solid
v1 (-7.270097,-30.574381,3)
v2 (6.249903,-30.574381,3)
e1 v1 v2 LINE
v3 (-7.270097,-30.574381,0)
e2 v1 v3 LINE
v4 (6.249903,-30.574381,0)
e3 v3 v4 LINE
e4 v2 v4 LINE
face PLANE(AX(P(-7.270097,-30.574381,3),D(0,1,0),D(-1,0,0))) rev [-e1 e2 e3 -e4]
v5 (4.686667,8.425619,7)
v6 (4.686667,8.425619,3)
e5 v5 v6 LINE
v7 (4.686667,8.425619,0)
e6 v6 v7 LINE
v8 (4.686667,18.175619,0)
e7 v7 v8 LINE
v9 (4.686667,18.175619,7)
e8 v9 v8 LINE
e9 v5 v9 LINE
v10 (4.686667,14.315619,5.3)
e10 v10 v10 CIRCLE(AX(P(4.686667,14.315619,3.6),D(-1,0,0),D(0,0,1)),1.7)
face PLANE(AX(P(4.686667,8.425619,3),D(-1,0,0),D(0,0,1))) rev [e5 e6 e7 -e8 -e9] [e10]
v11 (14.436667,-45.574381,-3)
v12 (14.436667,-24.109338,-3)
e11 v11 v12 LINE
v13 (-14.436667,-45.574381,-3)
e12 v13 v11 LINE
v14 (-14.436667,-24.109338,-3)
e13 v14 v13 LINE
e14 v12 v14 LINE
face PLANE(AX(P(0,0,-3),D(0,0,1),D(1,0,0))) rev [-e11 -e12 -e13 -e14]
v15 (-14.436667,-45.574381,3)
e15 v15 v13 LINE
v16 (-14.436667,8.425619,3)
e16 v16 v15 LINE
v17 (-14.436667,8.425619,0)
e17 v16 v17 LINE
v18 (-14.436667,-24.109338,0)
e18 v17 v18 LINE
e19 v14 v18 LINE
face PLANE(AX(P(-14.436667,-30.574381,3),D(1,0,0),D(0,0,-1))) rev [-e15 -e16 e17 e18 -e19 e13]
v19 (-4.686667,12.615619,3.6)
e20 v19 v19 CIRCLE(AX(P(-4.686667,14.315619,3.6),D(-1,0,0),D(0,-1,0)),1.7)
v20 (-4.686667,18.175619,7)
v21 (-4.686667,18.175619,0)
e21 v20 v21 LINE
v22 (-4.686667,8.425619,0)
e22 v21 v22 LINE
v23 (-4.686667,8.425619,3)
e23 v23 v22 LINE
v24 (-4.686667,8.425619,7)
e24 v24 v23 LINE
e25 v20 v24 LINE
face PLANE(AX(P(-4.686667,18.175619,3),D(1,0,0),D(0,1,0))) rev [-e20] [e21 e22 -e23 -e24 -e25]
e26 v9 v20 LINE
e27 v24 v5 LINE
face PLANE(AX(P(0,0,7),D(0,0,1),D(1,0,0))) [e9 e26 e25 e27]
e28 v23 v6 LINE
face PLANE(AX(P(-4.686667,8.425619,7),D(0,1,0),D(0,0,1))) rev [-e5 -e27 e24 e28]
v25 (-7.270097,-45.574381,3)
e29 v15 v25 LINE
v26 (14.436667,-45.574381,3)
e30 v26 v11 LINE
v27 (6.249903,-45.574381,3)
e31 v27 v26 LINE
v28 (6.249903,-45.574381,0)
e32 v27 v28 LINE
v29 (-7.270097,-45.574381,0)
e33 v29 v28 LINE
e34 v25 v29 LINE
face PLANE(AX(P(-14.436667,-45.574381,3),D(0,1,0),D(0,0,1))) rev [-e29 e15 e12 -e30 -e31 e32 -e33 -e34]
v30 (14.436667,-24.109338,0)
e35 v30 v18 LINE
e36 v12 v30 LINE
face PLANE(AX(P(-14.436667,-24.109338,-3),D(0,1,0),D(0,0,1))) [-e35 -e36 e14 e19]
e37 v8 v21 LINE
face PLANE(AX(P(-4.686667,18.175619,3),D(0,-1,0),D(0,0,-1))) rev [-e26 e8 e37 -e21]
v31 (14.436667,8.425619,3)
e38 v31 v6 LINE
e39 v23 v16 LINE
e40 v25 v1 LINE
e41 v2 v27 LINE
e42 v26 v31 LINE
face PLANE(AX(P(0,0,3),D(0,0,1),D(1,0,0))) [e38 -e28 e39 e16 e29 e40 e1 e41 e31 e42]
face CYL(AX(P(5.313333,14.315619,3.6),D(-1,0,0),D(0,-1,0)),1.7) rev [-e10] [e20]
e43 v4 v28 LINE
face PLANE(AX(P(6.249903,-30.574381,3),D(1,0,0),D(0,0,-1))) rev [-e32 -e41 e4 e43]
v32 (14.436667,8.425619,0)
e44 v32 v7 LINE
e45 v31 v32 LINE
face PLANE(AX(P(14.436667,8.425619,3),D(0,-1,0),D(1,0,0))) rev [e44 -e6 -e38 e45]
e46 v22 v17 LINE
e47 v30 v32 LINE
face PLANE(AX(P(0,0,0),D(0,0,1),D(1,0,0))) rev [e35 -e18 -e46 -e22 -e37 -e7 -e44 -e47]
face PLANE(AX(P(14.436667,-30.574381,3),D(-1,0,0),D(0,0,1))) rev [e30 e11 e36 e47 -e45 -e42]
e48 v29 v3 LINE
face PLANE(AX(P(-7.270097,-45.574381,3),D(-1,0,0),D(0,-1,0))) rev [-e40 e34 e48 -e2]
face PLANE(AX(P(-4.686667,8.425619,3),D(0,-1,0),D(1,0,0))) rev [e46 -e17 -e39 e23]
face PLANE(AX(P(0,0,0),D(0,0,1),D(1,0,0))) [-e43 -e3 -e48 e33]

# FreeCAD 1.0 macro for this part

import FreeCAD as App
import Part
import Sketcher

V = App.Vector

doc = App.newDocument("Part")
body = doc.addObject("PartDesign::Body", "Body")

sketch1 = body.newObject("Sketcher::SketchObject", "Sketch")
sketch1.AttachmentSupport = (doc.getObject("XY_Plane"), [""])
sketch1.MapMode = "FlatFace"
sketch1.addGeometry(Part.LineSegment(V(-5, 8, 0), V(-14, 8, 0)), False)
sketch1.addGeometry(Part.LineSegment(V(-14, 8, 0), V(-14, -46, 0)), False)
sketch1.addGeometry(Part.LineSegment(V(-14, -46, 0), V(-7, -46, 0)), False)
sketch1.addGeometry(Part.LineSegment(V(-7, -46, 0), V(-7, -31, 0)), False)
sketch1.addGeometry(Part.LineSegment(V(-7, -31, 0), V(6, -31, 0)), False)
sketch1.addGeometry(Part.LineSegment(V(6, -31, 0), V(6, -46, 0)), False)
sketch1.addGeometry(Part.LineSegment(V(6, -46, 0), V(14, -46, 0)), False)
sketch1.addGeometry(Part.LineSegment(V(14, -46, 0), V(14, 8, 0)), False)
sketch1.addGeometry(Part.LineSegment(V(14, 8, 0), V(5, 8, 0)), False)
sketch1.addGeometry(Part.LineSegment(V(5, 8, 0), V(5, 18, 0)), False)
sketch1.addGeometry(Part.LineSegment(V(5, 18, 0), V(-5, 18, 0)), False)
sketch1.addGeometry(Part.LineSegment(V(-5, 18, 0), V(-5, 8, 0)), False)
sketch1.addConstraint(Sketcher.Constraint("Coincident", 0, 2, 1, 1))
sketch1.addConstraint(Sketcher.Constraint("Coincident", 1, 2, 2, 1))
sketch1.addConstraint(Sketcher.Constraint("Coincident", 2, 2, 3, 1))
sketch1.addConstraint(Sketcher.Constraint("Coincident", 3, 2, 4, 1))
sketch1.addConstraint(Sketcher.Constraint("Coincident", 4, 2, 5, 1))
sketch1.addConstraint(Sketcher.Constraint("Coincident", 5, 2, 6, 1))
sketch1.addConstraint(Sketcher.Constraint("Coincident", 6, 2, 7, 1))
sketch1.addConstraint(Sketcher.Constraint("Coincident", 7, 2, 8, 1))
sketch1.addConstraint(Sketcher.Constraint("Coincident", 8, 2, 9, 1))
sketch1.addConstraint(Sketcher.Constraint("Coincident", 9, 2, 10, 1))
sketch1.addConstraint(Sketcher.Constraint("Coincident", 10, 2, 11, 1))
sketch1.addConstraint(Sketcher.Constraint("Coincident", 11, 2, 0, 1))
sketch1.addConstraint(Sketcher.Constraint("Horizontal", 0))
sketch1.addConstraint(Sketcher.Constraint("Vertical", 1))
sketch1.addConstraint(Sketcher.Constraint("Horizontal", 2))
sketch1.addConstraint(Sketcher.Constraint("Vertical", 3))
sketch1.addConstraint(Sketcher.Constraint("Horizontal", 4))
sketch1.addConstraint(Sketcher.Constraint("Vertical", 5))
sketch1.addConstraint(Sketcher.Constraint("Horizontal", 6))
sketch1.addConstraint(Sketcher.Constraint("Vertical", 7))
sketch1.addConstraint(Sketcher.Constraint("Horizontal", 8))
sketch1.addConstraint(Sketcher.Constraint("Vertical", 9))
sketch1.addConstraint(Sketcher.Constraint("Horizontal", 10))
sketch1.addConstraint(Sketcher.Constraint("Vertical", 11))
sketch1.addConstraint(Sketcher.Constraint("Symmetric", 1, 2, 6, 2, -2))
sketch1.addConstraint(Sketcher.Constraint("Symmetric", 8, 2, 11, 2, -2))
sketch1.addConstraint(Sketcher.Constraint("Equal", 8, 9))
sketch1.addConstraint(Sketcher.Constraint("DistanceY", 1, 2, 1, 1, 54.0))
sketch1.addConstraint(Sketcher.Constraint("DistanceY", 3, 1, 3, 2, 15.0))
sketch1.addConstraint(Sketcher.Constraint("DistanceX", 0, 2, 0, 1, 9.75))
sketch1.addConstraint(Sketcher.Constraint("DistanceX", 4, 1, 4, 2, 13.52))
sketch1.addConstraint(Sketcher.Constraint("DistanceX", 2, 1, 2, 2, 7.166569))
sketch1.addConstraint(Sketcher.Constraint("DistanceX", 6, 1, 6, 2, 8.186764))
sketch1.addConstraint(Sketcher.Constraint("DistanceY", -1, 1, 0, 2, 8.425619))
pad1 = body.newObject("PartDesign::Pad", "Pad")
pad1.Profile = sketch1
pad1.Length = 3

sketch2 = body.newObject("Sketcher::SketchObject", "Sketch001")
sketch2.AttachmentSupport = (doc.getObject("XY_Plane"), [""])
sketch2.MapMode = "FlatFace"
sketch2.AttachmentOffset = App.Placement(V(0, 0, 3), App.Rotation())
sketch2.addGeometry(Part.LineSegment(V(-5, 18, 0), V(-5, 8, 0)), False)
sketch2.addGeometry(Part.LineSegment(V(-5, 8, 0), V(5, 8, 0)), False)
sketch2.addGeometry(Part.LineSegment(V(5, 8, 0), V(5, 18, 0)), False)
sketch2.addGeometry(Part.LineSegment(V(5, 18, 0), V(-5, 18, 0)), False)
sketch2.addConstraint(Sketcher.Constraint("Coincident", 0, 2, 1, 1))
sketch2.addConstraint(Sketcher.Constraint("Coincident", 1, 2, 2, 1))
sketch2.addConstraint(Sketcher.Constraint("Coincident", 2, 2, 3, 1))
sketch2.addConstraint(Sketcher.Constraint("Coincident", 3, 2, 0, 1))
sketch2.addConstraint(Sketcher.Constraint("Vertical", 0))
sketch2.addConstraint(Sketcher.Constraint("Horizontal", 1))
sketch2.addConstraint(Sketcher.Constraint("Vertical", 2))
sketch2.addConstraint(Sketcher.Constraint("Horizontal", 3))
sketch2.addConstraint(Sketcher.Constraint("DistanceY", 0, 2, 0, 1, 9.75))
sketch2.addConstraint(Sketcher.Constraint("DistanceX", 1, 1, 1, 2, 9.373333))
sketch2.addConstraint(Sketcher.Constraint("DistanceY", -1, 1, 0, 2, 8.425619))
sketch2.addConstraint(Sketcher.Constraint("DistanceX", 0, 2, -1, 1, 4.686667))
pad2 = body.newObject("PartDesign::Pad", "Pad001")
pad2.Profile = sketch2
pad2.Length = 4

sketch3 = body.newObject("Sketcher::SketchObject", "Sketch002")
sketch3.AttachmentSupport = (doc.getObject("XY_Plane"), [""])
sketch3.MapMode = "FlatFace"
sketch3.addGeometry(Part.LineSegment(V(-14, -24, 0), V(-14, -46, 0)), False)
sketch3.addGeometry(Part.LineSegment(V(-14, -46, 0), V(14, -46, 0)), False)
sketch3.addGeometry(Part.LineSegment(V(14, -46, 0), V(14, -24, 0)), False)
sketch3.addGeometry(Part.LineSegment(V(14, -24, 0), V(-14, -24, 0)), False)
sketch3.addConstraint(Sketcher.Constraint("Coincident", 0, 2, 1, 1))
sketch3.addConstraint(Sketcher.Constraint("Coincident", 1, 2, 2, 1))
sketch3.addConstraint(Sketcher.Constraint("Coincident", 2, 2, 3, 1))
sketch3.addConstraint(Sketcher.Constraint("Coincident", 3, 2, 0, 1))
sketch3.addConstraint(Sketcher.Constraint("Vertical", 0))
sketch3.addConstraint(Sketcher.Constraint("Horizontal", 1))
sketch3.addConstraint(Sketcher.Constraint("Vertical", 2))
sketch3.addConstraint(Sketcher.Constraint("Horizontal", 3))
sketch3.addConstraint(Sketcher.Constraint("DistanceX", 1, 1, 1, 2, 28.873333))
sketch3.addConstraint(Sketcher.Constraint("DistanceY", 0, 2, 0, 1, 21.465044))
sketch3.addConstraint(Sketcher.Constraint("DistanceY", 0, 2, -1, 1, 45.574381))
sketch3.addConstraint(Sketcher.Constraint("DistanceX", 0, 2, -1, 1, 14.436667))
pad3 = body.newObject("PartDesign::Pad", "Pad002")
pad3.Profile = sketch3
pad3.Length = 3
pad3.Reversed = True

sketch4 = body.newObject("Sketcher::SketchObject", "Sketch003")
sketch4.AttachmentSupport = (doc.getObject("YZ_Plane"), [""])
sketch4.MapMode = "FlatFace"
sketch4.AttachmentOffset = App.Placement(V(0, 0, -4.686667), App.Rotation())
sketch4.addGeometry(Part.Circle(V(14.3, 3.6, 0), V(0, 0, 1), 1.7), False)
sketch4.addConstraint(Sketcher.Constraint("Diameter", 0, 3.4))
sketch4.addConstraint(Sketcher.Constraint("DistanceY", -1, 1, 0, 3, 3.6))
sketch4.addConstraint(Sketcher.Constraint("DistanceX", -1, 1, 0, 3, 14.315619))
pocket1 = body.newObject("PartDesign::Pocket", "Pocket")
pocket1.Profile = sketch4
pocket1.Length = 10
pocket1.Reversed = True

doc.recompute()
